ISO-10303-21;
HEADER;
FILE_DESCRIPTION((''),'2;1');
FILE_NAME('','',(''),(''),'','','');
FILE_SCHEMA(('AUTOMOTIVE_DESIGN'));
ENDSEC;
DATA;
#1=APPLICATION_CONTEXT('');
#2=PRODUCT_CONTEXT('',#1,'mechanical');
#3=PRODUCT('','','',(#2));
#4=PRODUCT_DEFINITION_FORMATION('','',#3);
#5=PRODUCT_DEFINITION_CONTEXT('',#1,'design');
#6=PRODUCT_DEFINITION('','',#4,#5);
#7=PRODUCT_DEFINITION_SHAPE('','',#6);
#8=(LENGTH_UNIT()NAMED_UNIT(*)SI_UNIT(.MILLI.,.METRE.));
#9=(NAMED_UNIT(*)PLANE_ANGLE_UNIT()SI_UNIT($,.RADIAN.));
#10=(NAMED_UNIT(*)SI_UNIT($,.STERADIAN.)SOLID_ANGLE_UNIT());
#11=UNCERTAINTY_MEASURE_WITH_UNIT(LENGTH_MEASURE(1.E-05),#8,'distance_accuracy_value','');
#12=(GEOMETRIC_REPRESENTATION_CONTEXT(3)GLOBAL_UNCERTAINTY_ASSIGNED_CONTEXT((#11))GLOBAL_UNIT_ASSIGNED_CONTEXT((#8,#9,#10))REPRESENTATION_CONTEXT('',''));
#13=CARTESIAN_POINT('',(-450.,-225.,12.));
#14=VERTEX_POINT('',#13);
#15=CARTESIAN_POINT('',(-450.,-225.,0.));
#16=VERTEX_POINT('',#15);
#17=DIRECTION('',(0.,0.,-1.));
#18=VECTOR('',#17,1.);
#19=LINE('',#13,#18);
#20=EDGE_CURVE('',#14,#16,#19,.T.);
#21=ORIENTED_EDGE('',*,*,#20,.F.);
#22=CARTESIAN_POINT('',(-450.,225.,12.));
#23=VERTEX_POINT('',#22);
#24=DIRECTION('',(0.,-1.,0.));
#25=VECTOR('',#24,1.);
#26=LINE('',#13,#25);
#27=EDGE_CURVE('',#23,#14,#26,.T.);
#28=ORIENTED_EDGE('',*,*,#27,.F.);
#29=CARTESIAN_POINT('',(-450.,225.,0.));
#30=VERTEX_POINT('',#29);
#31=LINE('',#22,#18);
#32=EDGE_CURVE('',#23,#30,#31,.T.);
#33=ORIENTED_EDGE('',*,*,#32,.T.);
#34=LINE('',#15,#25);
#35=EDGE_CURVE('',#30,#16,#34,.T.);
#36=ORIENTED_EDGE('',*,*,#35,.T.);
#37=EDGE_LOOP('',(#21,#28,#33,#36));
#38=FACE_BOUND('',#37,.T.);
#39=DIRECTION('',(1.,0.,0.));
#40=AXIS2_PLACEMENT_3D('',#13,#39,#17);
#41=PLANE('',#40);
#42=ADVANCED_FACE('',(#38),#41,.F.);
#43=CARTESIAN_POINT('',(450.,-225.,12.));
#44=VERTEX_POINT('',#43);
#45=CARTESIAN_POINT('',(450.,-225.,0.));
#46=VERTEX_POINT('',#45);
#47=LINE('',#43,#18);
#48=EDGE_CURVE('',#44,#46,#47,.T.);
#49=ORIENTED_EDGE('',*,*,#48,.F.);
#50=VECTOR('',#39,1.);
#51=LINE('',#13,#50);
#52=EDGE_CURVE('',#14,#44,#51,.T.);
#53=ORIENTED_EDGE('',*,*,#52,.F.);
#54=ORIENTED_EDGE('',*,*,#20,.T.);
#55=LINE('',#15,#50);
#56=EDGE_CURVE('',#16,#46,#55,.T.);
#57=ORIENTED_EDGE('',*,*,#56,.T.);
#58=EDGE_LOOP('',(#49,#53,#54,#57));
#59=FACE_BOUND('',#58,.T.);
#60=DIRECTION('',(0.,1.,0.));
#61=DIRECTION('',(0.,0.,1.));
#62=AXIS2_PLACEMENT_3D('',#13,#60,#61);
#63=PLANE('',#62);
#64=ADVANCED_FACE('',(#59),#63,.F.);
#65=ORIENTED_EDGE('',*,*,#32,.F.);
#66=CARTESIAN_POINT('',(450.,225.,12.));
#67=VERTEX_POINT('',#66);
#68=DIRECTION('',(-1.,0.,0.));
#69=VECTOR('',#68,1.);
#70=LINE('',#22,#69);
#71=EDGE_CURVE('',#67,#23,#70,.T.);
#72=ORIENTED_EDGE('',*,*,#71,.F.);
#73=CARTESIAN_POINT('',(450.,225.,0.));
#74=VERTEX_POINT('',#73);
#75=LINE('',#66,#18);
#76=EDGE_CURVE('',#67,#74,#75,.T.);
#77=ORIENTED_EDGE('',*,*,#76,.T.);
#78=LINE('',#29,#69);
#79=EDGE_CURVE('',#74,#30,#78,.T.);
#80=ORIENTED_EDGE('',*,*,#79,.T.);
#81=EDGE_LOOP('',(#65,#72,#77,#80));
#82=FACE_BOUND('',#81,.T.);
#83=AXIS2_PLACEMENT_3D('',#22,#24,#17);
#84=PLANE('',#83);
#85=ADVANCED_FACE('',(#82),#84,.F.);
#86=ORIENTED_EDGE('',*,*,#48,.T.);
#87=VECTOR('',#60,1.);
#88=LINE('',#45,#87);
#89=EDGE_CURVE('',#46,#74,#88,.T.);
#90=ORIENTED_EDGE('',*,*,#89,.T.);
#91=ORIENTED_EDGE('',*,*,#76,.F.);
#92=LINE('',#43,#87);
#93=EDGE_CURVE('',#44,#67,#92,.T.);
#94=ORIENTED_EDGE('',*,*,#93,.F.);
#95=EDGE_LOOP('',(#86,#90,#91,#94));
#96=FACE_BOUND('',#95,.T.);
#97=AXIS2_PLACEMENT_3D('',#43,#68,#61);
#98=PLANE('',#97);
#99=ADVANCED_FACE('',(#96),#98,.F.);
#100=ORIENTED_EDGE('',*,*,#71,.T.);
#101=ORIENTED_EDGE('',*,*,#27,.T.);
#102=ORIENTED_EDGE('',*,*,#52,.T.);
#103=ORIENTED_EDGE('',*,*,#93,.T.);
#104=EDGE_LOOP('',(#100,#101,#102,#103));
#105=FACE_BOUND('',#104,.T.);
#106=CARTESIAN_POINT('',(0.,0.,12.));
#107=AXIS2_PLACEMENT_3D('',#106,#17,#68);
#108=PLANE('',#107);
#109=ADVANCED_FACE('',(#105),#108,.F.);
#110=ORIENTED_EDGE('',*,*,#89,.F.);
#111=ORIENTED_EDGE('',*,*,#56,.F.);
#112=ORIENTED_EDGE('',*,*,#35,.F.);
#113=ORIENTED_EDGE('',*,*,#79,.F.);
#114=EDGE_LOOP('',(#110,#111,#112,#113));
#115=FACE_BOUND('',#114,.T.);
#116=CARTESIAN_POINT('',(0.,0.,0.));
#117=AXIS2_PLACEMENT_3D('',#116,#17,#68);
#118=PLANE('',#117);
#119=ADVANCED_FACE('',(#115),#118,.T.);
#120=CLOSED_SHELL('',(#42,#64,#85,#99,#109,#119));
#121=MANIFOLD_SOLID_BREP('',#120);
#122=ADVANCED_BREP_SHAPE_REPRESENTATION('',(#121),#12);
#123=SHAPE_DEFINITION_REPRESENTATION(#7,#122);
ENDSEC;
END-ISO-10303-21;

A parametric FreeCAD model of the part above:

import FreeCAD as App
import Part
import Sketcher


def add_polygon(sketch, points):
    """Adds a closed chain of lines whose ends are joined by coincident constraints."""
    first, n = sketch.GeometryCount, len(points)
    for a, b in zip(points, points[1:] + points[:1]):
        sketch.addGeometry(Part.LineSegment(App.Vector(*a, 0), App.Vector(*b, 0)), False)
    for i in range(n):
        sketch.addConstraint(Sketcher.Constraint("Coincident", first + i, 2, first + (i + 1) % n, 1))

doc = App.newDocument("Part")
body = doc.addObject("PartDesign::Body", "Body")

sketch1 = doc.addObject("Sketcher::SketchObject", "Sketch")
body.addObject(sketch1)
sketch1.AttachmentSupport = (doc.XY_Plane, [""])
sketch1.MapMode = "FlatFace"
add_polygon(sketch1, [(-450, 225), (-450, -225), (450, -225), (450, 225)])
sketch1.addConstraint([
    Sketcher.Constraint("Vertical", 0),
    Sketcher.Constraint("Horizontal", 1),
    Sketcher.Constraint("Vertical", 2),
    Sketcher.Constraint("Horizontal", 3),
    Sketcher.Constraint("Symmetric", 0, 2, 2, 2, -1, 1),
    Sketcher.Constraint("DistanceX", 1, 1, 1, 2, 900.0),
    Sketcher.Constraint("DistanceY", 0, 2, 0, 1, 450.0),
])
pad1 = doc.addObject("PartDesign::Pad", "Pad")
body.addObject(pad1)
pad1.Profile = sketch1
pad1.Length = 12

doc.recompute()
